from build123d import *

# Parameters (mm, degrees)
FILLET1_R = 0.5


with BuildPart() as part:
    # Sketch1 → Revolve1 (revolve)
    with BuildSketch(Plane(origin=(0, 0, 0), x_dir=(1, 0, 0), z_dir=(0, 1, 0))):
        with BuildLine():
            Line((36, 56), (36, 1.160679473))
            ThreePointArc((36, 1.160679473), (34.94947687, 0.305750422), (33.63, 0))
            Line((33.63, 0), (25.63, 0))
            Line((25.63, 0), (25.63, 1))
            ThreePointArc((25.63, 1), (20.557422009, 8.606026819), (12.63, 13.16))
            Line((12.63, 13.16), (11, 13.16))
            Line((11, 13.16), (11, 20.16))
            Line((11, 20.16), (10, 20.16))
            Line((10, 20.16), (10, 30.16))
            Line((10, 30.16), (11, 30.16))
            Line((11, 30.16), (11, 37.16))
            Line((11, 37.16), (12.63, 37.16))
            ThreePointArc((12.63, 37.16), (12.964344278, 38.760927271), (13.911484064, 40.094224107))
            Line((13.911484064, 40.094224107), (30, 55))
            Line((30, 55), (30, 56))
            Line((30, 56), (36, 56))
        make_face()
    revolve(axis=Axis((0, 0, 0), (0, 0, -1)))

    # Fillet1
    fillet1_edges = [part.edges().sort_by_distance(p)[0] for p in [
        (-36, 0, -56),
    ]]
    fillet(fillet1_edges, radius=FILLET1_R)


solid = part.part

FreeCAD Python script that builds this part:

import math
import FreeCAD as App
import Part
import Sketcher

V = App.Vector
Q = App.Units.Quantity


def edges_at(feature, points):
    """Names of the edges that pass closest to the given points."""
    edges = feature.Shape.Edges
    near = lambda p: min(range(len(edges)), key=lambda i: edges[i].distToShape(Part.Vertex(*p))[0])
    return sorted({f"Edge{near(p) + 1}" for p in points})

doc = App.newDocument("Part")
body = doc.addObject("PartDesign::Body", "Body")

sketch1 = body.newObject("Sketcher::SketchObject", "Sketch")
sketch1.AttachmentSupport = (doc.getObject("XZ_Plane"), [""])
sketch1.MapMode = "FlatFace"
sketch1.addGeometry(Part.LineSegment(V(36, -1.2, 0), V(36, -56, 0)), False)
sketch1.addGeometry(Part.LineSegment(V(36, -56, 0), V(30, -56, 0)), False)
sketch1.addGeometry(Part.LineSegment(V(30, -56, 0), V(30, -55, 0)), False)
sketch1.addGeometry(Part.LineSegment(V(30, -55, 0), V(13.9, -40.1, 0)), False)
sketch1.addGeometry(Part.ArcOfCircle(Part.Circle(V(16.6, -37.2, 0), V(0, 0, 1), 4), math.radians(-180), math.radians(-133)), False)
sketch1.addGeometry(Part.LineSegment(V(12.6, -37.2, 0), V(11, -37.2, 0)), False)
sketch1.addGeometry(Part.LineSegment(V(11, -37.2, 0), V(11, -30.2, 0)), False)
sketch1.addGeometry(Part.LineSegment(V(11, -30.2, 0), V(10, -30.2, 0)), False)
sketch1.addGeometry(Part.LineSegment(V(10, -30.2, 0), V(10, -20.2, 0)), False)
sketch1.addGeometry(Part.LineSegment(V(10, -20.2, 0), V(11, -20.2, 0)), False)
sketch1.addGeometry(Part.LineSegment(V(11, -20.2, 0), V(11, -13.2, 0)), False)
sketch1.addGeometry(Part.LineSegment(V(11, -13.2, 0), V(12.6, -13.2, 0)), False)
sketch1.addGeometry(Part.ArcOfCircle(Part.Circle(V(6.9, 6, 0), V(0, 0, 1), 20), math.radians(-73), math.radians(-20)), False)
sketch1.addGeometry(Part.LineSegment(V(25.6, -1, 0), V(25.6, 0, 0)), False)
sketch1.addGeometry(Part.LineSegment(V(25.6, 0, 0), V(33.6, 0, 0)), False)
sketch1.addGeometry(Part.ArcOfCircle(Part.Circle(V(33.6, -3, 0), V(0, 0, 1), 3), math.radians(38), math.radians(90)), False)
sketch1.addConstraint(Sketcher.Constraint("Coincident", 0, 2, 1, 1))
sketch1.addConstraint(Sketcher.Constraint("Coincident", 1, 2, 2, 1))
sketch1.addConstraint(Sketcher.Constraint("Coincident", 2, 2, 3, 1))
sketch1.addConstraint(Sketcher.Constraint("Tangent", 3, 2, 4, 2))
sketch1.addConstraint(Sketcher.Constraint("Coincident", 4, 1, 5, 1))
sketch1.addConstraint(Sketcher.Constraint("Coincident", 5, 2, 6, 1))
sketch1.addConstraint(Sketcher.Constraint("Coincident", 6, 2, 7, 1))
sketch1.addConstraint(Sketcher.Constraint("Coincident", 7, 2, 8, 1))
sketch1.addConstraint(Sketcher.Constraint("Coincident", 8, 2, 9, 1))
sketch1.addConstraint(Sketcher.Constraint("Coincident", 9, 2, 10, 1))
sketch1.addConstraint(Sketcher.Constraint("Coincident", 10, 2, 11, 1))
sketch1.addConstraint(Sketcher.Constraint("Coincident", 11, 2, 12, 1))
sketch1.addConstraint(Sketcher.Constraint("Coincident", 12, 2, 13, 1))
sketch1.addConstraint(Sketcher.Constraint("Coincident", 13, 2, 14, 1))
sketch1.addConstraint(Sketcher.Constraint("Tangent", 14, 2, 15, 2))
sketch1.addConstraint(Sketcher.Constraint("Coincident", 15, 1, 0, 1))
sketch1.addConstraint(Sketcher.Constraint("Vertical", 0))
sketch1.addConstraint(Sketcher.Constraint("Horizontal", 1))
sketch1.addConstraint(Sketcher.Constraint("Vertical", 2))
sketch1.addConstraint(Sketcher.Constraint("Horizontal", 5))
sketch1.addConstraint(Sketcher.Constraint("Vertical", 6))
sketch1.addConstraint(Sketcher.Constraint("Horizontal", 7))
sketch1.addConstraint(Sketcher.Constraint("Vertical", 8))
sketch1.addConstraint(Sketcher.Constraint("Horizontal", 9))
sketch1.addConstraint(Sketcher.Constraint("Vertical", 10))
sketch1.addConstraint(Sketcher.Constraint("Horizontal", 11))
sketch1.addConstraint(Sketcher.Constraint("Vertical", 13))
sketch1.addConstraint(Sketcher.Constraint("Horizontal", 14))
sketch1.addConstraint(Sketcher.Constraint("PointOnObject", 13, 2, -1))
sketch1.addConstraint(Sketcher.Constraint("Vertical", 6, 2, 9, 2))
sketch1.addConstraint(Sketcher.Constraint("Vertical", 4, 1, 11, 2))
sketch1.addConstraint(Sketcher.Constraint("Equal", 9, 2))
sketch1.addConstraint(Sketcher.Constraint("Equal", 6, 10))
sketch1.addConstraint(Sketcher.Constraint("Equal", 2, 13))
sketch1.addConstraint(Sketcher.Constraint("Radius", 4, Q("4 mm")))
sketch1.addConstraint(Sketcher.Constraint("Radius", 12, Q("20 mm")))
sketch1.addConstraint(Sketcher.Constraint("Radius", 15, Q("3 mm")))
sketch1.addConstraint(Sketcher.Constraint("DistanceX", 1, 2, 1, 1, Q("6 mm")))
sketch1.addConstraint(Sketcher.Constraint("DistanceX", 7, 2, 7, 1, Q("1 mm")))
sketch1.addConstraint(Sketcher.Constraint("DistanceX", 14, 1, 14, 2, Q("8 mm")))
sketch1.addConstraint(Sketcher.Constraint("DistanceY", 6, 1, 6, 2, Q("7 mm")))
sketch1.addConstraint(Sketcher.Constraint("DistanceY", 8, 1, 8, 2, Q("10 mm")))
sketch1.addConstraint(Sketcher.Constraint("DistanceX", -1, 1, 0, 2, Q("36 mm")))
sketch1.addConstraint(Sketcher.Constraint("DistanceY", 0, 2, -1, 1, Q("56 mm")))
sketch1.addConstraint(Sketcher.Constraint("DistanceX", -1, 1, 5, 2, Q("11 mm")))
sketch1.addConstraint(Sketcher.Constraint("DistanceX", 4, 3, 15, 3, Q("17 mm")))
sketch1.addConstraint(Sketcher.Constraint("DistanceY", 4, 3, 6, 2, Q("7 mm")))
sketch1.addConstraint(Sketcher.Constraint("DistanceX", 5, 2, 5, 1, Q("1.63 mm")))
sketch1.addConstraint(Sketcher.Constraint("DistanceY", 4, 3, -1, 1, Q("37.16 mm")))
revolution = body.newObject("PartDesign::Revolution", "Revolution")
revolution.Profile = sketch1
revolution.ReferenceAxis = (sketch1, ["V_Axis"])
revolution.Angle = 360
doc.recompute()

fillet = body.newObject("PartDesign::Fillet", "Fillet")
fillet.Base = (revolution, edges_at(revolution, [(-36, 0, -56)]))
fillet.Radius = 0.5

doc.recompute()
